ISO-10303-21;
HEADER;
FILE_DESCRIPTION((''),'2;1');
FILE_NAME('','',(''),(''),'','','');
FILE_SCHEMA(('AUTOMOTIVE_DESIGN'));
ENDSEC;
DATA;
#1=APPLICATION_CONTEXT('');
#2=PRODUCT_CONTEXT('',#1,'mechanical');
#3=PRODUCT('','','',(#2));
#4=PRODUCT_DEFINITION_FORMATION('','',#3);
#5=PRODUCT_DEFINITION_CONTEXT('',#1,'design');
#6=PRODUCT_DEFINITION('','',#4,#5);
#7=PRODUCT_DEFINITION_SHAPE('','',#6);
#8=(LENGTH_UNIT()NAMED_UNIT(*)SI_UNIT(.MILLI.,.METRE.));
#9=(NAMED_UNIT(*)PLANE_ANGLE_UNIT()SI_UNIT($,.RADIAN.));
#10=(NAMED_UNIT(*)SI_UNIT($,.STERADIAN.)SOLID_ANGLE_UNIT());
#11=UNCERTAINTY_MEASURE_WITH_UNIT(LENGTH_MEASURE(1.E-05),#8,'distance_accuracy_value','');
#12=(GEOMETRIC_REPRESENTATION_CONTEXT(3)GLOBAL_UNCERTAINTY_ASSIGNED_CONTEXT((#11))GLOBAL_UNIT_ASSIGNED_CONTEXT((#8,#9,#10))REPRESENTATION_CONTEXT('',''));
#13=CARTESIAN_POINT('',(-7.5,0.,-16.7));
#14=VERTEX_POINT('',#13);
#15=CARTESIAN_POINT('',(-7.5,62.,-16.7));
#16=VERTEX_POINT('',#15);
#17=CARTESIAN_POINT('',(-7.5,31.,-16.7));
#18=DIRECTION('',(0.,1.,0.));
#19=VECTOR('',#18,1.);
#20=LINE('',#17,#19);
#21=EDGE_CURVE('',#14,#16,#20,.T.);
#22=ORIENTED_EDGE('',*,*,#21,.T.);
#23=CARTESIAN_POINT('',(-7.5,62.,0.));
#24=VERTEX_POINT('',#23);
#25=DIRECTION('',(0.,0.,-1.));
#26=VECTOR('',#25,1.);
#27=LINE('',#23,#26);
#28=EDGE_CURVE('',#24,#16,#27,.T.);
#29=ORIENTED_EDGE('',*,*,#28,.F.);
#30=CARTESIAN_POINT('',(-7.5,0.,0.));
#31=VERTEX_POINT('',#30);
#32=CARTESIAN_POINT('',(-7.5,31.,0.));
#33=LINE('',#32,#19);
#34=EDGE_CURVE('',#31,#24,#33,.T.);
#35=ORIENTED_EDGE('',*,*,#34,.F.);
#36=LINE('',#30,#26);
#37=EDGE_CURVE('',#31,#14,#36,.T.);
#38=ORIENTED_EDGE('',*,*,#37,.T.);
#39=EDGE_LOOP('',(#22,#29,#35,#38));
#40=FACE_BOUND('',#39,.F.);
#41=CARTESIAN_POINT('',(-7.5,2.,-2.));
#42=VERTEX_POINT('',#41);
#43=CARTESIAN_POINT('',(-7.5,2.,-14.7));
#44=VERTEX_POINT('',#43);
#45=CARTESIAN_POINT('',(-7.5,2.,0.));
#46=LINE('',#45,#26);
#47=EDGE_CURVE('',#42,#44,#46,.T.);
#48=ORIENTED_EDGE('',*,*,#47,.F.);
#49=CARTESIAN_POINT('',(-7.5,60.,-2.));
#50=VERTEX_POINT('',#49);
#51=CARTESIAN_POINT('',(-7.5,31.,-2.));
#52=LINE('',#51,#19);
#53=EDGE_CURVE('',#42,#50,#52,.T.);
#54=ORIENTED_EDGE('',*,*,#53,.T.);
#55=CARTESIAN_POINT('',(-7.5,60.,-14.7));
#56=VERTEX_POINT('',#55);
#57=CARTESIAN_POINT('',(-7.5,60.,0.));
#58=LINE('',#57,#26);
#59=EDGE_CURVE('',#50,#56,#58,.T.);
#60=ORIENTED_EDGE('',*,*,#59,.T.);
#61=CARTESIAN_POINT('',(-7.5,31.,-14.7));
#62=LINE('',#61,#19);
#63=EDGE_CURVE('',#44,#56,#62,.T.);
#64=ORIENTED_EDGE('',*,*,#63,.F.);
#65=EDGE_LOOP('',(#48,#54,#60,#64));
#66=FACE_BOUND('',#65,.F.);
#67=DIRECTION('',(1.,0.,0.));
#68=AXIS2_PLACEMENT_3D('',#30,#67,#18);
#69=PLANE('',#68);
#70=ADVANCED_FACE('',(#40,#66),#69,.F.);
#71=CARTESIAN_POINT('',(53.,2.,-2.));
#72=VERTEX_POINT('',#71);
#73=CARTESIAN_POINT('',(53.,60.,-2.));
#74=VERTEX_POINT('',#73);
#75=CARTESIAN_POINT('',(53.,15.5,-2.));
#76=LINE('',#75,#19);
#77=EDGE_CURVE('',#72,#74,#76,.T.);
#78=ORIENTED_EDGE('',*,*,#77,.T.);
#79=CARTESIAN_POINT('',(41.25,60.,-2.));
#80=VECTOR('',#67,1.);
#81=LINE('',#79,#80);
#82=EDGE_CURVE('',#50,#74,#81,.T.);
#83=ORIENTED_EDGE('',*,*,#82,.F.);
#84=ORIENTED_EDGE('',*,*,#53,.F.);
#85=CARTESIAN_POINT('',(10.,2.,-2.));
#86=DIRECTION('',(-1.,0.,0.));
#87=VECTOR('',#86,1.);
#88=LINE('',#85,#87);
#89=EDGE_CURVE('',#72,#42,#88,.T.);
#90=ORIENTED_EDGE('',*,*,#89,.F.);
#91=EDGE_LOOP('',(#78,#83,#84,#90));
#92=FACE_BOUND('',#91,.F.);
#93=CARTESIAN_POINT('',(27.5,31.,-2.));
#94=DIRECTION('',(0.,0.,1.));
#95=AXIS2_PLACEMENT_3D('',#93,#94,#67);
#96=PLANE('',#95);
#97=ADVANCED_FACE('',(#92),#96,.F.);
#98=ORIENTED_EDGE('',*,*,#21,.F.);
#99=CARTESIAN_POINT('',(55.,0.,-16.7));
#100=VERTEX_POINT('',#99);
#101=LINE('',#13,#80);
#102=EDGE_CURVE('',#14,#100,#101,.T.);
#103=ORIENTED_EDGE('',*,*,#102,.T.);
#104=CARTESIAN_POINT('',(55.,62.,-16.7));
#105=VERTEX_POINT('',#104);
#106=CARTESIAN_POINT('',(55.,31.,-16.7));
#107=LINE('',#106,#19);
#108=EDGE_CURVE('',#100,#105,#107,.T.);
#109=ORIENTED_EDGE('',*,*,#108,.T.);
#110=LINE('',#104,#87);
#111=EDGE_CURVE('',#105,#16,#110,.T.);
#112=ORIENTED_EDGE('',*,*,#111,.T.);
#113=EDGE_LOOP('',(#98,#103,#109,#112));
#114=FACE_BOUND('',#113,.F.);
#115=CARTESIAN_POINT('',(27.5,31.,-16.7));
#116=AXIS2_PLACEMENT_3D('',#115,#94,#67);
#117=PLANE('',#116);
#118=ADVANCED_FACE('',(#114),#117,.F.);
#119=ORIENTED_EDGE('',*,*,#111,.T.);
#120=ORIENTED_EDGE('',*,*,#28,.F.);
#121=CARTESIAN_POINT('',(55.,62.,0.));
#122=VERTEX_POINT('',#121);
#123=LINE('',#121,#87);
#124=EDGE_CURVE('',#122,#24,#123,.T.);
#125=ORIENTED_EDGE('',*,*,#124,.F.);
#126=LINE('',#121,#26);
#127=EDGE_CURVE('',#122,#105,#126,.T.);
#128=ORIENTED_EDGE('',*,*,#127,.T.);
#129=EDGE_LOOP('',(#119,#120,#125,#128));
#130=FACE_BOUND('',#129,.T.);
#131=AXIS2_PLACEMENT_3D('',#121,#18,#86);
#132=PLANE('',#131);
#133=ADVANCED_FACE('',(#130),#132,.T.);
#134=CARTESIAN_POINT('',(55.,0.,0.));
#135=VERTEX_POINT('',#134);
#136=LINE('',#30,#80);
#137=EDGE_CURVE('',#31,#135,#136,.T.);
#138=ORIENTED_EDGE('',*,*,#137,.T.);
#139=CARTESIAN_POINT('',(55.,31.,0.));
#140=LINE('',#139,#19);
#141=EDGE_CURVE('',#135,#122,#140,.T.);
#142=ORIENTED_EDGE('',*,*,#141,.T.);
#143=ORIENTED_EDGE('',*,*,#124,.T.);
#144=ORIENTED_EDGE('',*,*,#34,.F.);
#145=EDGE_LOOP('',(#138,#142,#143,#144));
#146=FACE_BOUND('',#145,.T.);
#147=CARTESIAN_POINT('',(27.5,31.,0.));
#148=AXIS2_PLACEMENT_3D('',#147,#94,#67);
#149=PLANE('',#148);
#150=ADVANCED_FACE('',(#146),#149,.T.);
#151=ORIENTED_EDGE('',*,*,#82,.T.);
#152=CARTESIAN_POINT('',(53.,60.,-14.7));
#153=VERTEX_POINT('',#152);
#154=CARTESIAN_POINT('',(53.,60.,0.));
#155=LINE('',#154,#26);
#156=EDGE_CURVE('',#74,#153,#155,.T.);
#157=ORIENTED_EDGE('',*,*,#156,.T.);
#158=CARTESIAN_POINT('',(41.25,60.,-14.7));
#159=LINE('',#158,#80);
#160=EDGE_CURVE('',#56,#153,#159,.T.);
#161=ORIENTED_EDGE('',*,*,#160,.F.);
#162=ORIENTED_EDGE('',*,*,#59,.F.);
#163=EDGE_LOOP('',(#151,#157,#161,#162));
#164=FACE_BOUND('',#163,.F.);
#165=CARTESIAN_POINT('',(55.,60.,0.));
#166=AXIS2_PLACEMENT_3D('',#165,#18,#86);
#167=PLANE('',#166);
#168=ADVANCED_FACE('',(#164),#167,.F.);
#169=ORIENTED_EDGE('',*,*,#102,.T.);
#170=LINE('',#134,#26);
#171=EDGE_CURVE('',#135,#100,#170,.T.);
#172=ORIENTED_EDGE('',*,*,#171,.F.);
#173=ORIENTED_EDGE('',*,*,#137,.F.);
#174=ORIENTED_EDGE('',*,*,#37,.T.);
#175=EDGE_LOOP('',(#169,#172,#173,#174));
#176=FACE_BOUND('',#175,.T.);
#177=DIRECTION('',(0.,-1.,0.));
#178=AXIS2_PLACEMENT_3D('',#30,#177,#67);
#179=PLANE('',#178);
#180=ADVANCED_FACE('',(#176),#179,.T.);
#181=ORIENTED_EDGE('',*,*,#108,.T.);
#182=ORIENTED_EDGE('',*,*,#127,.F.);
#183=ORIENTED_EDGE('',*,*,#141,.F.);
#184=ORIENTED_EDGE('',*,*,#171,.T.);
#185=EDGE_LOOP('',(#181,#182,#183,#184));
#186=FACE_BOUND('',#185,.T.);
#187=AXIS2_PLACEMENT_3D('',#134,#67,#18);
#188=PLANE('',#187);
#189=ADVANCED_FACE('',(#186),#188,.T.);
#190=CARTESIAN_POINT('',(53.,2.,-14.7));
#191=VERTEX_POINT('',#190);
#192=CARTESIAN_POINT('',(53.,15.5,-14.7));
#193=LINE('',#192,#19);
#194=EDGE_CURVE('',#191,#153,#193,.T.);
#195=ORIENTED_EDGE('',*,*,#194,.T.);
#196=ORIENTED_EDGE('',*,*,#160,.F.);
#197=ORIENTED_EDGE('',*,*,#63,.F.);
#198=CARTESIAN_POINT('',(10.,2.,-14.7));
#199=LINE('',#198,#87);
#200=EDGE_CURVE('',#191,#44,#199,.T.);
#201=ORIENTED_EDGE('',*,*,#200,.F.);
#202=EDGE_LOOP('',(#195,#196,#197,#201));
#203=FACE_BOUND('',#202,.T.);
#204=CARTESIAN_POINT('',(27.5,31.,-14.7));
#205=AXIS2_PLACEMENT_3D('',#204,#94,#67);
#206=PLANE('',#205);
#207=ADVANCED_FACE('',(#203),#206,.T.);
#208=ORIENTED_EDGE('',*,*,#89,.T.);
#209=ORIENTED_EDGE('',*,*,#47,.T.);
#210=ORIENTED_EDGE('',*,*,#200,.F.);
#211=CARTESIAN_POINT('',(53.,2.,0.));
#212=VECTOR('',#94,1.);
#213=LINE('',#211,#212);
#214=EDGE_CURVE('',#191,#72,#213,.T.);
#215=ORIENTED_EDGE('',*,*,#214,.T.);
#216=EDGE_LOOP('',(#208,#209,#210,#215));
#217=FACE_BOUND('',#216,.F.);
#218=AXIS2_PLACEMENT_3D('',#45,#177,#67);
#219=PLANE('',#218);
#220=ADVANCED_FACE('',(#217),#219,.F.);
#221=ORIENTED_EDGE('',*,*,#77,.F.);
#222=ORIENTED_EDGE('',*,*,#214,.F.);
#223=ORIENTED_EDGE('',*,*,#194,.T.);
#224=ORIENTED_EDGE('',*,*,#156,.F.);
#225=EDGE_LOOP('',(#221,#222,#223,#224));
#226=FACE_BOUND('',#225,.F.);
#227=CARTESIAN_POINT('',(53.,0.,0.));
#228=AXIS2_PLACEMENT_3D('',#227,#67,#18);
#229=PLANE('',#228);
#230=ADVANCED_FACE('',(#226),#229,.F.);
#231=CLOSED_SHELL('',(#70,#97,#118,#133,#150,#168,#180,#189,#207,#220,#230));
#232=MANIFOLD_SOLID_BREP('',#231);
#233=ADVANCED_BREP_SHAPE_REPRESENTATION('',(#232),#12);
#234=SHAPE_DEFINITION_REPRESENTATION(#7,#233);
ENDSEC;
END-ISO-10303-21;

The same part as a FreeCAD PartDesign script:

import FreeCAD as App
import Part
import Sketcher


def faces_at(feature, points):
    """Names of the faces that lie closest to the given points."""
    faces = feature.Shape.Faces
    near = lambda p: min(range(len(faces)), key=lambda i: faces[i].distToShape(Part.Vertex(*p))[0])
    return sorted({f"Face{near(p) + 1}" for p in points})


def add_polygon(sketch, points):
    """Adds a closed chain of lines whose ends are joined by coincident constraints."""
    first, n = sketch.GeometryCount, len(points)
    for a, b in zip(points, points[1:] + points[:1]):
        sketch.addGeometry(Part.LineSegment(App.Vector(*a, 0), App.Vector(*b, 0)), False)
    for i in range(n):
        sketch.addConstraint(Sketcher.Constraint("Coincident", first + i, 2, first + (i + 1) % n, 1))

doc = App.newDocument("Part")
params = doc.addObject("Spreadsheet::Sheet", "Params")
for row, (alias, value) in enumerate([
    ("sketch1_height", "62 mm"),
    ("sketch1_width", "62.5 mm"),
    ("pad1_length", "16.7 mm"),
    ("thickness_wall", "2 mm"),
], start=1):
    params.set(f"A{row}", alias)
    params.set(f"B{row}", "=" + value)
    params.setAlias(f"B{row}", alias)

body = doc.addObject("PartDesign::Body", "Body")

# Sketch on XY plane
sketch1 = body.newObject("Sketcher::SketchObject", "Sketch")
sketch1.AttachmentSupport = (doc.getObject("XY_Plane"), [""])
sketch1.MapMode = "FlatFace"
add_polygon(sketch1, [(55, 0), (55, 62), (-7.5, 62), (-7.5, 0)])  # lines 0-3
sketch1.addConstraint(Sketcher.Constraint("Vertical", 0))
sketch1.addConstraint(Sketcher.Constraint("Horizontal", 1))
sketch1.addConstraint(Sketcher.Constraint("Vertical", 2))
sketch1.addConstraint(Sketcher.Constraint("Horizontal", 3))
sketch1.addConstraint(Sketcher.Constraint("PointOnObject", 2, 2, -1))
sketch1.addConstraint(Sketcher.Constraint("DistanceY", 0, 1, 0, 2, 62.0))
sketch1.addConstraint(Sketcher.Constraint("DistanceX", 1, 2, 1, 1, 62.5))
sketch1.addConstraint(Sketcher.Constraint("DistanceX", -1, 1, 0, 2, 55.0))
sketch1.setExpression("Constraints[9]", "Params.sketch1_height")
sketch1.setExpression("Constraints[10]", "Params.sketch1_width")
pad1 = body.newObject("PartDesign::Pad", "Pad")
pad1.Profile = sketch1
pad1.setExpression("Length", "Params.pad1_length")
pad1.Reversed = True
doc.recompute()

thickness = body.newObject("PartDesign::Thickness", "Thickness")
thickness.Base = (pad1, faces_at(pad1, [(-7.5, 31, -8.35)]))
thickness.setExpression("Value", "Params.thickness_wall")
thickness.Reversed = True
thickness.Join = "Arc"

doc.recompute()
